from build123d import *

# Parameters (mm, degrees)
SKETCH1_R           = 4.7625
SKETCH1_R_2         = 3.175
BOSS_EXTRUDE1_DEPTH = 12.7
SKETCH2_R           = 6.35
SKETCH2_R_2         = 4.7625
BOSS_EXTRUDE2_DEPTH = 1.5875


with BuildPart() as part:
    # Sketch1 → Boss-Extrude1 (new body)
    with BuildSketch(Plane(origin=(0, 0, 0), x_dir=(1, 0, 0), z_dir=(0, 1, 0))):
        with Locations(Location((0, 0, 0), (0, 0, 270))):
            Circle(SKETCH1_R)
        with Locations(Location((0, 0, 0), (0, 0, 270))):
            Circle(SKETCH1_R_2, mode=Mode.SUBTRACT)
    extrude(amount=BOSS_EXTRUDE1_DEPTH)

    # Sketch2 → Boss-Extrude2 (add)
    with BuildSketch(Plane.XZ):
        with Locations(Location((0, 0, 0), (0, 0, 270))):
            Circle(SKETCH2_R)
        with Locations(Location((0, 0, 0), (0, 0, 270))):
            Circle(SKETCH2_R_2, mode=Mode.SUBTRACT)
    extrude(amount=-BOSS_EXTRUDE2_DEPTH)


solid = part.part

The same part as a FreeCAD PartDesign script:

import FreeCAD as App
import Part
import Sketcher
Q = App.Units.Quantity

doc = App.newDocument("Part")
body = doc.addObject("PartDesign::Body", "Body")

sketch1 = doc.addObject("Sketcher::SketchObject", "Sketch")
body.addObject(sketch1)
sketch1.AttachmentSupport = (doc.XZ_Plane, [""])
sketch1.MapMode = "FlatFace"
sketch1.addGeometry([
    Part.Circle(App.Vector(0, 0, 0), App.Vector(0, 0, 1), 4.8),
    Part.Circle(App.Vector(0, 0, 0), App.Vector(0, 0, 1), 3.2),
], False)
sketch1.addConstraint([
    Sketcher.Constraint("Coincident", 0, 3, -1, 1),
    Sketcher.Constraint("Coincident", 1, 3, -1, 1),
    Sketcher.Constraint("Diameter", 1, Q("0.25 in")),
    Sketcher.Constraint("Diameter", 0, Q("0.375 in")),
])
pad1 = doc.addObject("PartDesign::Pad", "Pad")
body.addObject(pad1)
pad1.Profile = sketch1
pad1.Length = Q("0.5 in")
pad1.Reversed = True

sketch2 = doc.addObject("Sketcher::SketchObject", "Sketch001")
body.addObject(sketch2)
sketch2.AttachmentSupport = (doc.XZ_Plane, [""])
sketch2.MapMode = "FlatFace"
sketch2.addGeometry([
    Part.Circle(App.Vector(0, 0, 0), App.Vector(0, 0, 1), 6.3),
    Part.Circle(App.Vector(0, 0, 0), App.Vector(0, 0, 1), 4.8),
], False)
sketch2.addConstraint([
    Sketcher.Constraint("Coincident", 0, 3, -1, 1),
    Sketcher.Constraint("Coincident", 1, 3, -1, 1),
    Sketcher.Constraint("Diameter", 0, Q("0.5 in")),
    Sketcher.Constraint("Diameter", 1, Q("0.375 in")),
])
pad2 = doc.addObject("PartDesign::Pad", "Pad001")
body.addObject(pad2)
pad2.Profile = sketch2
pad2.Length = Q("0.0625 in")
pad2.Reversed = True

doc.recompute()
